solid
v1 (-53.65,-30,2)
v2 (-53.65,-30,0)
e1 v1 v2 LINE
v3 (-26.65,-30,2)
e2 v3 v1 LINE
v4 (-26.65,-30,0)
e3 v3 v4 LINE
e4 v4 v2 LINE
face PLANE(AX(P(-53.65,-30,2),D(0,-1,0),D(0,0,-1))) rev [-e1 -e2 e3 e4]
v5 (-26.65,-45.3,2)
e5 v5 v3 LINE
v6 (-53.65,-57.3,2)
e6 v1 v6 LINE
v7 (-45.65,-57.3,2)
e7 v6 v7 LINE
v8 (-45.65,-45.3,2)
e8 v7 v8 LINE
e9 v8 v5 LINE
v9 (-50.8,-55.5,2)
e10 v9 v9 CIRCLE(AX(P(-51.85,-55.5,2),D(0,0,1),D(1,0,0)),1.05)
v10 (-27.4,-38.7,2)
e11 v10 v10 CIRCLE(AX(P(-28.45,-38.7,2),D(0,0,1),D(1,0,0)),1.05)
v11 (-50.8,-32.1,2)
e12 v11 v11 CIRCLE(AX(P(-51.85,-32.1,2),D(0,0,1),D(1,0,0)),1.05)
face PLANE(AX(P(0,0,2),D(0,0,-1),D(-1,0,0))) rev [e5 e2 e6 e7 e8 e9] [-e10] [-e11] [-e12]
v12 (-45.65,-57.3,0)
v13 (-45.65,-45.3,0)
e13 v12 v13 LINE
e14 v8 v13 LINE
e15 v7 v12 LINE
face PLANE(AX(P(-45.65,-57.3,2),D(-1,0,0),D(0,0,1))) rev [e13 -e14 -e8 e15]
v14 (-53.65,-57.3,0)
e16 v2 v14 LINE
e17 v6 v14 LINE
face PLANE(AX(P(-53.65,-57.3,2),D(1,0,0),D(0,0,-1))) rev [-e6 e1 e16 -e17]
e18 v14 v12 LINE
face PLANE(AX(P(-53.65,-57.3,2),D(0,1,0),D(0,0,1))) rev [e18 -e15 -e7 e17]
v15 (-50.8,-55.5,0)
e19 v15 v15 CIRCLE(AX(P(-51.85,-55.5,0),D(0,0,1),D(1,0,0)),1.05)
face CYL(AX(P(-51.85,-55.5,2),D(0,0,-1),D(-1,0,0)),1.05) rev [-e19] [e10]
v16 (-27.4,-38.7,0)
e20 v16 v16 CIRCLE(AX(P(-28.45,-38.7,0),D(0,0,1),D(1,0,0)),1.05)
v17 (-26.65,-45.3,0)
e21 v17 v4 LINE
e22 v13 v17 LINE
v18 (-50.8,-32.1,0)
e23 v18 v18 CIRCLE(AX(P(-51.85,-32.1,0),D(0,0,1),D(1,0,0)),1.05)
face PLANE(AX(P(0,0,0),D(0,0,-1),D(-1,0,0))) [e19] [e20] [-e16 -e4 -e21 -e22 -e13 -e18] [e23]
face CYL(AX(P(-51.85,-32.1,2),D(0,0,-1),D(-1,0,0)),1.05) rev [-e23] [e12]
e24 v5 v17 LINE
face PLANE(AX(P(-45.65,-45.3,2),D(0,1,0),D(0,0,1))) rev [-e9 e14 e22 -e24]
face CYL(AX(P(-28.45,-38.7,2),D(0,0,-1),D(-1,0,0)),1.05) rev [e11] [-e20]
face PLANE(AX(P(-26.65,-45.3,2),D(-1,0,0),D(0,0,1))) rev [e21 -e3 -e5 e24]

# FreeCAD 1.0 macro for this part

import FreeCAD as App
import Part
import Sketcher
from FreeCAD import Vector


def add_polygon(sketch, points):
    """Adds a closed chain of lines whose ends are joined by coincident constraints."""
    first, n = sketch.GeometryCount, len(points)
    for a, b in zip(points, points[1:] + points[:1]):
        sketch.addGeometry(Part.LineSegment(App.Vector(*a, 0), App.Vector(*b, 0)), False)
    for i in range(n):
        sketch.addConstraint(Sketcher.Constraint("Coincident", first + i, 2, first + (i + 1) % n, 1))

doc = App.newDocument("Part")
body = doc.addObject("PartDesign::Body", "Body")

# Sketch on XY plane
sketch1 = body.newObject("Sketcher::SketchObject", "Sketch")
sketch1.AttachmentSupport = (doc.getObject("XY_Plane"), [""])
sketch1.MapMode = "FlatFace"
add_polygon(sketch1, [(-53.65, -57.3), (-45.65, -57.3), (-45.65, -45.3), (-26.65, -45.3), (-26.65, -30), (-53.65, -30)])  # lines 0-5
sketch1.addGeometry(Part.Circle(Vector(-51.85, -55.5, 0), Vector(0, 0, 1), 1.05), False)  # 6
sketch1.addGeometry(Part.Circle(Vector(-51.85, -32.1, 0), Vector(0, 0, 1), 1.05), False)  # 7
sketch1.addGeometry(Part.Circle(Vector(-28.45, -38.7, 0), Vector(0, 0, 1), 1.05), False)  # 8
sketch1.addConstraint(Sketcher.Constraint("Horizontal", 0))
sketch1.addConstraint(Sketcher.Constraint("Vertical", 1))
sketch1.addConstraint(Sketcher.Constraint("Horizontal", 2))
sketch1.addConstraint(Sketcher.Constraint("Vertical", 3))
sketch1.addConstraint(Sketcher.Constraint("Horizontal", 4))
sketch1.addConstraint(Sketcher.Constraint("Vertical", 5))
sketch1.addConstraint(Sketcher.Constraint("Equal", 6, 7))
sketch1.addConstraint(Sketcher.Constraint("Equal", 7, 8))
sketch1.addConstraint(Sketcher.Constraint("Vertical", 6, 3, 7, 3))
sketch1.addConstraint(Sketcher.Constraint("Diameter", 6, 2.1))
sketch1.addConstraint(Sketcher.Constraint("DistanceX", 0, 1, 0, 2, 8.0))
sketch1.addConstraint(Sketcher.Constraint("DistanceX", 2, 1, 2, 2, 19.0))
sketch1.addConstraint(Sketcher.Constraint("DistanceY", 1, 1, 1, 2, 12.0))
sketch1.addConstraint(Sketcher.Constraint("DistanceY", 3, 1, 3, 2, 15.3))
sketch1.addConstraint(Sketcher.Constraint("DistanceY", 3, 2, -1, 1, 30.0))
sketch1.addConstraint(Sketcher.Constraint("DistanceY", 6, 3, -1, 1, 55.5))
sketch1.addConstraint(Sketcher.Constraint("DistanceY", 7, 3, -1, 1, 32.1))
sketch1.addConstraint(Sketcher.Constraint("DistanceY", 8, 3, -1, 1, 38.7))
sketch1.addConstraint(Sketcher.Constraint("DistanceX", 7, 3, 8, 3, 23.4))
sketch1.addConstraint(Sketcher.Constraint("DistanceX", 6, 3, 0, 2, 6.2))
sketch1.addConstraint(Sketcher.Constraint("DistanceX", 6, 3, -1, 1, 51.85))
pad1 = body.newObject("PartDesign::Pad", "Pad")
pad1.Profile = sketch1
pad1.Length = 2

doc.recompute()
